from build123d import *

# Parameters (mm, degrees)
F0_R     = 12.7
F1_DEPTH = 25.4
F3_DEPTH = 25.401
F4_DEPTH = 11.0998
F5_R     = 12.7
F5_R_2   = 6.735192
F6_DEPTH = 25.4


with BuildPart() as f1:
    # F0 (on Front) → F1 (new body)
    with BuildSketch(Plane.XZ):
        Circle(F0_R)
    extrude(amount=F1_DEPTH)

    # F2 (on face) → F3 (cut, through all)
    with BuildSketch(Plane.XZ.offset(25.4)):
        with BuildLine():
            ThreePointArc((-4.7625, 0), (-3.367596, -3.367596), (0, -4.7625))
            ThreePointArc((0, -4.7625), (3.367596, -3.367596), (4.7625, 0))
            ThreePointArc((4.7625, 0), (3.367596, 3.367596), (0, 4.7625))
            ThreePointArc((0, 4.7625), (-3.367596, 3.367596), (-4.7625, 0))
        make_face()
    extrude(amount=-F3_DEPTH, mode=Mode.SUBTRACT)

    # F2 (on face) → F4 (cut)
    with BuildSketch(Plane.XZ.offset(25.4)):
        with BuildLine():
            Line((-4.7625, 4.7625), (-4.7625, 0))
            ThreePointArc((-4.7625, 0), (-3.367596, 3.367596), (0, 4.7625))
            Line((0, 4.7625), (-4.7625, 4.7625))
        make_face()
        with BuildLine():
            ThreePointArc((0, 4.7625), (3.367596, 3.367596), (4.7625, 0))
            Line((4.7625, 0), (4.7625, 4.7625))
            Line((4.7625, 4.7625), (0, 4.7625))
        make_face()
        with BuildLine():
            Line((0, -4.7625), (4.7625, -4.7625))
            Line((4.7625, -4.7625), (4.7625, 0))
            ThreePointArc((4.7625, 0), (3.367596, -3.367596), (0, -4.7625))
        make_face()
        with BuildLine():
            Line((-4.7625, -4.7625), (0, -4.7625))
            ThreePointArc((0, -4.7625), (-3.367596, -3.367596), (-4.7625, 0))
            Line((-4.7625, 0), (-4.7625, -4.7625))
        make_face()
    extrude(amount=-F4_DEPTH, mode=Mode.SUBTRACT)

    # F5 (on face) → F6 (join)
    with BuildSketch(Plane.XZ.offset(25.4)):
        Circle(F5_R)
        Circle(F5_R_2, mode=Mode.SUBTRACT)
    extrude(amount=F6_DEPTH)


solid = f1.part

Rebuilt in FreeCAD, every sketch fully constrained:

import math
import FreeCAD as App
import Part
import Sketcher

V = App.Vector
Q = App.Units.Quantity

doc = App.newDocument("Part")
params = doc.addObject("Spreadsheet::Sheet", "Params")
for row, (alias, value) in enumerate([
    ("sketch1_diameter", "1 in"),
    ("pad1_length", "1 in"),
    ("sketch2_radius", "0.1875 in"),
    ("sketch3_radius", "0.1875 in"),
    ("pocket2_length", "0.437 in"),
    ("sketch4_diameter", "1 in"),
    ("pad2_length", "1 in"),
], start=1):
    params.set(f"A{row}", alias)
    params.set(f"B{row}", "=" + value)
    params.setAlias(f"B{row}", alias)

body = doc.addObject("PartDesign::Body", "Body")

sketch1 = body.newObject("Sketcher::SketchObject", "Sketch")
sketch1.AttachmentSupport = (doc.getObject("XZ_Plane"), [""])
sketch1.MapMode = "FlatFace"
sketch1.addGeometry(Part.Circle(V(0, 0, 0), V(0, 0, 1), 12.7), False)
sketch1.addConstraint([
    Sketcher.Constraint("Coincident", 0, 3, -1, 1),
    Sketcher.Constraint("Diameter", 0, Q("1 in")),
])
sketch1.setExpression("Constraints[1]", "Params.sketch1_diameter")
pad1 = body.newObject("PartDesign::Pad", "Pad")
pad1.Profile = sketch1
pad1.setExpression("Length", "Params.pad1_length")

sketch2 = body.newObject("Sketcher::SketchObject", "Sketch001")
sketch2.AttachmentSupport = (doc.getObject("XZ_Plane"), [""])
sketch2.MapMode = "FlatFace"
sketch2.AttachmentOffset = App.Placement(V(0, 0, 1 * 25.4), App.Rotation())
sketch2.addGeometry([
    Part.ArcOfCircle(Part.Circle(V(0, 0, 0), V(0, 0, 1), 4.7625), math.radians(-179.999998), math.radians(-90.000002)),
    Part.ArcOfCircle(Part.Circle(V(0, 0, 0), V(0, 0, 1), 4.7625), math.radians(-89.999998), math.radians(-0.000002)),
    Part.ArcOfCircle(Part.Circle(V(0, 0, 0), V(0, 0, 1), 4.7625), math.radians(0.000002), math.radians(89.999998)),
    Part.ArcOfCircle(Part.Circle(V(0, 0, 0), V(0, 0, 1), 4.7625), math.radians(90.000002), math.radians(179.999998)),
], False)
sketch2.addConstraint([
    Sketcher.Constraint("Tangent", 0, 2, 1, 1),
    Sketcher.Constraint("Tangent", 1, 2, 2, 1),
    Sketcher.Constraint("Tangent", 2, 2, 3, 1),
    Sketcher.Constraint("Tangent", 3, 2, 0, 1),
    Sketcher.Constraint("Coincident", 0, 3, -1, 1),
    Sketcher.Constraint("Equal", 0, 1),
    Sketcher.Constraint("PointOnObject", 0, 2, -2),
    Sketcher.Constraint("PointOnObject", 1, 2, -1),
    Sketcher.Constraint("PointOnObject", 2, 2, -2),
    Sketcher.Constraint("PointOnObject", 3, 2, -1),
    Sketcher.Constraint("Radius", 0, Q("0.1875 in")),
])
sketch2.setExpression("Constraints[10]", "Params.sketch2_radius")
pocket1 = body.newObject("PartDesign::Pocket", "Pocket")
pocket1.Profile = sketch2
pocket1.Type = "ThroughAll"

sketch3 = body.newObject("Sketcher::SketchObject", "Sketch002")
sketch3.AttachmentSupport = (doc.getObject("XZ_Plane"), [""])
sketch3.MapMode = "FlatFace"
sketch3.AttachmentOffset = App.Placement(V(0, 0, 1 * 25.4), App.Rotation())
sketch3.addGeometry([
    Part.LineSegment(V(-4.7625, 4.7625, 0), V(-4.7625, 0, 0)),
    Part.ArcOfCircle(Part.Circle(V(0, 0, 0), V(0, 0, 1), 4.7625), math.radians(90.000002), math.radians(179.999998)),
    Part.LineSegment(V(0, 4.7625, 0), V(-4.7625, 4.7625, 0)),
    Part.ArcOfCircle(Part.Circle(V(0, 0, 0), V(0, 0, 1), 4.7625), math.radians(0.000002), math.radians(89.999998)),
    Part.LineSegment(V(4.7625, 0, 0), V(4.7625, 4.7625, 0)),
    Part.LineSegment(V(4.7625, 4.7625, 0), V(0, 4.7625, 0)),
    Part.LineSegment(V(0, -4.7625, 0), V(4.7625, -4.7625, 0)),
    Part.LineSegment(V(4.7625, -4.7625, 0), V(4.7625, 0, 0)),
    Part.ArcOfCircle(Part.Circle(V(0, 0, 0), V(0, 0, 1), 4.7625), math.radians(-89.999998), math.radians(-0.000002)),
    Part.LineSegment(V(-4.7625, -4.7625, 0), V(0, -4.7625, 0)),
    Part.ArcOfCircle(Part.Circle(V(0, 0, 0), V(0, 0, 1), 4.7625), math.radians(-179.999998), math.radians(-90.000002)),
    Part.LineSegment(V(-4.7625, 0, 0), V(-4.7625, -4.7625, 0)),
], False)
sketch3.addConstraint([
    Sketcher.Constraint("Tangent", 0, 2, 1, 2),
    Sketcher.Constraint("Tangent", 1, 1, 2, 1),
    Sketcher.Constraint("Coincident", 2, 2, 0, 1),
    Sketcher.Constraint("Tangent", 3, 1, 4, 1),
    Sketcher.Constraint("Coincident", 4, 2, 5, 1),
    Sketcher.Constraint("Tangent", 5, 2, 3, 2),
    Sketcher.Constraint("Coincident", 6, 2, 7, 1),
    Sketcher.Constraint("Tangent", 7, 2, 8, 2),
    Sketcher.Constraint("Tangent", 8, 1, 6, 1),
    Sketcher.Constraint("Tangent", 9, 2, 10, 2),
    Sketcher.Constraint("Tangent", 10, 1, 11, 1),
    Sketcher.Constraint("Coincident", 11, 2, 9, 1),
    Sketcher.Constraint("Vertical", 0),
    Sketcher.Constraint("Horizontal", 2),
    Sketcher.Constraint("Vertical", 4),
    Sketcher.Constraint("Horizontal", 5),
    Sketcher.Constraint("Horizontal", 6),
    Sketcher.Constraint("Vertical", 7),
    Sketcher.Constraint("Horizontal", 9),
    Sketcher.Constraint("Vertical", 11),
    Sketcher.Constraint("Coincident", 1, 3, -1, 1),
    Sketcher.Constraint("Coincident", 3, 3, -1, 1),
    Sketcher.Constraint("Coincident", 8, 3, -1, 1),
    Sketcher.Constraint("Coincident", 10, 3, -1, 1),
    Sketcher.Constraint("Equal", 1, 3),
    Sketcher.Constraint("Equal", 3, 8),
    Sketcher.Constraint("Equal", 8, 10),
    Sketcher.Constraint("Radius", 1, Q("0.1875 in")),
])
sketch3.setExpression("Constraints[27]", "Params.sketch3_radius")
pocket2 = body.newObject("PartDesign::Pocket", "Pocket001")
pocket2.Profile = sketch3
pocket2.setExpression("Length", "Params.pocket2_length")

sketch4 = body.newObject("Sketcher::SketchObject", "Sketch003")
sketch4.AttachmentSupport = (doc.getObject("XZ_Plane"), [""])
sketch4.MapMode = "FlatFace"
sketch4.AttachmentOffset = App.Placement(V(0, 0, 1 * 25.4), App.Rotation())
sketch4.addGeometry([
    Part.Circle(V(0, 0, 0), V(0, 0, 1), 12.7),
    Part.Circle(V(0, 0, 0), V(0, 0, 1), 6.735192),
], False)
sketch4.addConstraint([
    Sketcher.Constraint("Coincident", 0, 3, -1, 1),
    Sketcher.Constraint("Coincident", 1, 3, -1, 1),
    Sketcher.Constraint("Diameter", 0, Q("1 in")),
    Sketcher.Constraint("Diameter", 1, 13.470384),
])
sketch4.setExpression("Constraints[2]", "Params.sketch4_diameter")
pad2 = body.newObject("PartDesign::Pad", "Pad001")
pad2.Profile = sketch4
pad2.setExpression("Length", "Params.pad2_length")

doc.recompute()
